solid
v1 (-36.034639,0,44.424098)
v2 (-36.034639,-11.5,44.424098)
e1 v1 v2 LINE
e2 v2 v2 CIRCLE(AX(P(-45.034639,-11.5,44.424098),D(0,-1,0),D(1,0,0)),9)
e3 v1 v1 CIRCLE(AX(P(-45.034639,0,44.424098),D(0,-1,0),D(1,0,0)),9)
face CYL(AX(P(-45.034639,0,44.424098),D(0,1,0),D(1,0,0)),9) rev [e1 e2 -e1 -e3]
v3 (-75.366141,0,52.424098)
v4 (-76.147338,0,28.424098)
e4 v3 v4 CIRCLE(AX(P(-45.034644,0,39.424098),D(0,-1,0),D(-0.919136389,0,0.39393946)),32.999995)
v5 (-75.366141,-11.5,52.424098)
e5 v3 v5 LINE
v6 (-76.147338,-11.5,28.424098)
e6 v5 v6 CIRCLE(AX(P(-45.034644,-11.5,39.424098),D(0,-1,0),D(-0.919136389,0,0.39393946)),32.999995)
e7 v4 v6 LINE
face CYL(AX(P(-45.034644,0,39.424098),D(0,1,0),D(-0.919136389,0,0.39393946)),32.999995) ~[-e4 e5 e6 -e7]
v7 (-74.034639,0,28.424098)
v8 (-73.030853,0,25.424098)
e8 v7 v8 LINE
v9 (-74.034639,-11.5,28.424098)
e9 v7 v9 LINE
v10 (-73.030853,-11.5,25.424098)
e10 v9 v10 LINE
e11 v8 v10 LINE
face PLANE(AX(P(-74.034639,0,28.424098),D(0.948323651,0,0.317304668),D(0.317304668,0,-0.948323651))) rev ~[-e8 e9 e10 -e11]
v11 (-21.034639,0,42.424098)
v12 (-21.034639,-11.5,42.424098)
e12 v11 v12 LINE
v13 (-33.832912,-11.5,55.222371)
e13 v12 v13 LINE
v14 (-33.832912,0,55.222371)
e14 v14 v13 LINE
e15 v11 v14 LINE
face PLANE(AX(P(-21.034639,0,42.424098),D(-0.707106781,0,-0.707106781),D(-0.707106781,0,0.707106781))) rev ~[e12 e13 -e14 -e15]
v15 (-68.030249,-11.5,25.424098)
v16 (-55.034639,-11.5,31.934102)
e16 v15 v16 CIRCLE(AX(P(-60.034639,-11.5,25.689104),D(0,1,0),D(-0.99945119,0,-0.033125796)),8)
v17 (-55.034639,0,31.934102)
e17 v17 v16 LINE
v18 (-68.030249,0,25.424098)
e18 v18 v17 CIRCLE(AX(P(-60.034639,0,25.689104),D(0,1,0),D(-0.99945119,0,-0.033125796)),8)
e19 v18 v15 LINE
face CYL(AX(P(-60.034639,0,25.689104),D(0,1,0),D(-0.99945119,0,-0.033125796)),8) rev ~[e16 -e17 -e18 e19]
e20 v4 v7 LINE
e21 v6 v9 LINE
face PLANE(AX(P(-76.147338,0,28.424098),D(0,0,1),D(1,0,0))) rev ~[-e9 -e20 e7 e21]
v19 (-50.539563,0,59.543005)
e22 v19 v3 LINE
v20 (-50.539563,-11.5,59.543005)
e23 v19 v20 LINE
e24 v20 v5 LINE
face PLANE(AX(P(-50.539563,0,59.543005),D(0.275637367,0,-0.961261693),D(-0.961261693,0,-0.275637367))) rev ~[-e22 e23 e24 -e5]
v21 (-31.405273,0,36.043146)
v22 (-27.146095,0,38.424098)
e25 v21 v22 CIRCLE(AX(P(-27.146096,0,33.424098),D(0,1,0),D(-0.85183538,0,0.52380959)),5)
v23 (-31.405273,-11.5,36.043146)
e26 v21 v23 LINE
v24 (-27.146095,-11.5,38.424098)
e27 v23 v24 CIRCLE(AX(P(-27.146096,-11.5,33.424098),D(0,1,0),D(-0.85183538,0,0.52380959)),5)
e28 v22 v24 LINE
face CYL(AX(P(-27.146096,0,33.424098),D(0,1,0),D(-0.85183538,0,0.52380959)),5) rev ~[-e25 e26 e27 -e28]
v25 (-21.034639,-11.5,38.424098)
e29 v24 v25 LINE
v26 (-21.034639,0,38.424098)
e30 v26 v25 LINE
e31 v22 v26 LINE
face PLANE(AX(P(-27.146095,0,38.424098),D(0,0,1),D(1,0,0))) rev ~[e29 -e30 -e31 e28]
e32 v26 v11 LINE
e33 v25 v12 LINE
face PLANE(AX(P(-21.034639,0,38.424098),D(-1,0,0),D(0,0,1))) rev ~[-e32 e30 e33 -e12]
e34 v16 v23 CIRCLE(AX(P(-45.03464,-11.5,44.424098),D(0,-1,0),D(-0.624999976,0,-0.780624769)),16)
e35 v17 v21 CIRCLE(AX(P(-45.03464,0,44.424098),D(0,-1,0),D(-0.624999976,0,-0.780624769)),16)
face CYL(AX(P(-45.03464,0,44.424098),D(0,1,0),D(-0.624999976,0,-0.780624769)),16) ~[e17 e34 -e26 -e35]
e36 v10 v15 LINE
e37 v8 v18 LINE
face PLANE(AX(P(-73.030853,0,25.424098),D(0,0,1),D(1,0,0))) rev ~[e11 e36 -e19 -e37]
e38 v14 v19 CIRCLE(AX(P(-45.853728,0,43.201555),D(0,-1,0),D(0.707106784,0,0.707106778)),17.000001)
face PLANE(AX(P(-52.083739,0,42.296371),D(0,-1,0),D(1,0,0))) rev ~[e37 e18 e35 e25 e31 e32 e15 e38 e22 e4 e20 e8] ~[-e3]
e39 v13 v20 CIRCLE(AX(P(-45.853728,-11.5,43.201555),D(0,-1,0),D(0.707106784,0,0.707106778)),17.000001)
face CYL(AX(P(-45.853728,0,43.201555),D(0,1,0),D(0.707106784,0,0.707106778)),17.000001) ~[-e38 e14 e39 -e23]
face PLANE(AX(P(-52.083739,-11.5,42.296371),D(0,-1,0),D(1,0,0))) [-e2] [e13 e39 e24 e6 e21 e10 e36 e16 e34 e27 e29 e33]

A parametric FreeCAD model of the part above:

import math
import FreeCAD as App
import Part
import Sketcher

V = App.Vector
Q = App.Units.Quantity

doc = App.newDocument("Part")
body = doc.addObject("PartDesign::Body", "Body")

# Sketch on XZ plane
sketch1 = doc.addObject("Sketcher::SketchObject", "Sketch")
body.addObject(sketch1)
sketch1.AttachmentSupport = (doc.XZ_Plane, [""])
sketch1.MapMode = "FlatFace"
sketch1.addGeometry([
    Part.LineSegment(V(-21, 38.4, 0), V(-21, 42.4, 0)),  # 0
    Part.LineSegment(V(-21, 42.4, 0), V(-33.8, 55.2, 0)),  # 1
    Part.ArcOfCircle(Part.Circle(V(-45.9, 43.2, 0), V(0, 0, 1), 17), math.radians(45), math.radians(106)),  # 2
    Part.LineSegment(V(-50.5, 59.5, 0), V(-75.4, 52.4, 0)),  # 3
    Part.ArcOfCircle(Part.Circle(V(-45, 39.4, 0), V(0, 0, 1), 33), math.radians(157), math.radians(199)),  # 4
    Part.LineSegment(V(-76.1, 28.4, 0), V(-74, 28.4, 0)),  # 5
    Part.LineSegment(V(-74, 28.4, 0), V(-73, 25.4, 0)),  # 6
    Part.LineSegment(V(-73, 25.4, 0), V(-68, 25.4, 0)),  # 7
    Part.ArcOfCircle(Part.Circle(V(-60, 25.7, 0), V(0, 0, 1), 8), math.radians(51), math.radians(182)),  # 8
    Part.ArcOfCircle(Part.Circle(V(-45, 44.4, 0), V(0, 0, 1), 16), math.radians(-129), math.radians(-32)),  # 9
    Part.ArcOfCircle(Part.Circle(V(-27.1, 33.4, 0), V(0, 0, 1), 5), math.radians(90), math.radians(148)),  # 10
    Part.LineSegment(V(-27.1, 38.4, 0), V(-21, 38.4, 0)),  # 11
    Part.Circle(V(-45, 44.4, 0), V(0, 0, 1), 9),  # 12
], False)
sketch1.addConstraint([
    Sketcher.Constraint("Coincident", 0, 2, 1, 1),
    Sketcher.Constraint("Tangent", 1, 2, 2, 1),
    Sketcher.Constraint("Tangent", 2, 2, 3, 1),
    Sketcher.Constraint("Coincident", 3, 2, 4, 1),
    Sketcher.Constraint("Coincident", 4, 2, 5, 1),
    Sketcher.Constraint("Coincident", 5, 2, 6, 1),
    Sketcher.Constraint("Coincident", 6, 2, 7, 1),
    Sketcher.Constraint("Coincident", 7, 2, 8, 2),
    Sketcher.Constraint("Tangent", 8, 1, 9, 1),
    Sketcher.Constraint("Tangent", 9, 2, 10, 2),
    Sketcher.Constraint("Tangent", 10, 1, 11, 1),
    Sketcher.Constraint("Coincident", 11, 2, 0, 1),
    Sketcher.Constraint("Vertical", 0),
    Sketcher.Constraint("Horizontal", 5),
    Sketcher.Constraint("Horizontal", 7),
    Sketcher.Constraint("Horizontal", 11),
    Sketcher.Constraint("Coincident", 12, 3, 9, 3),
    Sketcher.Constraint("Diameter", 12, 18.0),
    Sketcher.Constraint("Radius", 2, 17.000001),
    Sketcher.Constraint("Radius", 8, 8.0),
    Sketcher.Constraint("Radius", 9, 16.0),
    Sketcher.Constraint("Radius", 10, 5.0),
    Sketcher.Constraint("DistanceY", 0, 1, 0, 2, 4.0),
    Sketcher.Constraint("Angle", 1, Q("135 deg")),
    Sketcher.Constraint("Angle", 3, Q("-163.999999 deg")),
    Sketcher.Constraint("Angle", 6, Q("-71.499999 deg")),
    Sketcher.Constraint("DistanceY", 4, 3, 9, 3, 5.0),
    Sketcher.Constraint("DistanceX", 8, 3, 9, 3, 15.0),
    Sketcher.Constraint("DistanceY", 10, 3, 4, 3, 6.0),
    Sketcher.Constraint("DistanceX", 12, 3, 0, 2, 24.0),
    Sketcher.Constraint("DistanceY", 9, 3, 3, 2, 8.0),
    Sketcher.Constraint("DistanceY", 4, 2, 3, 2, 24.0),
    Sketcher.Constraint("DistanceX", 5, 2, 8, 3, 14.0),
    Sketcher.Constraint("DistanceY", 6, 2, 5, 2, 3.0),
    Sketcher.Constraint("DistanceX", 5, 1, 5, 2, 2.112699),
    Sketcher.Constraint("Radius", 4, 32.999995),
    Sketcher.Constraint("DistanceY", -1, 1, 9, 3, 44.424098),
    Sketcher.Constraint("DistanceX", 2, 3, -1, 1, 45.853728),
])
pad1 = doc.addObject("PartDesign::Pad", "Pad")
body.addObject(pad1)
pad1.Profile = sketch1
pad1.Length = 11.5

doc.recompute()
